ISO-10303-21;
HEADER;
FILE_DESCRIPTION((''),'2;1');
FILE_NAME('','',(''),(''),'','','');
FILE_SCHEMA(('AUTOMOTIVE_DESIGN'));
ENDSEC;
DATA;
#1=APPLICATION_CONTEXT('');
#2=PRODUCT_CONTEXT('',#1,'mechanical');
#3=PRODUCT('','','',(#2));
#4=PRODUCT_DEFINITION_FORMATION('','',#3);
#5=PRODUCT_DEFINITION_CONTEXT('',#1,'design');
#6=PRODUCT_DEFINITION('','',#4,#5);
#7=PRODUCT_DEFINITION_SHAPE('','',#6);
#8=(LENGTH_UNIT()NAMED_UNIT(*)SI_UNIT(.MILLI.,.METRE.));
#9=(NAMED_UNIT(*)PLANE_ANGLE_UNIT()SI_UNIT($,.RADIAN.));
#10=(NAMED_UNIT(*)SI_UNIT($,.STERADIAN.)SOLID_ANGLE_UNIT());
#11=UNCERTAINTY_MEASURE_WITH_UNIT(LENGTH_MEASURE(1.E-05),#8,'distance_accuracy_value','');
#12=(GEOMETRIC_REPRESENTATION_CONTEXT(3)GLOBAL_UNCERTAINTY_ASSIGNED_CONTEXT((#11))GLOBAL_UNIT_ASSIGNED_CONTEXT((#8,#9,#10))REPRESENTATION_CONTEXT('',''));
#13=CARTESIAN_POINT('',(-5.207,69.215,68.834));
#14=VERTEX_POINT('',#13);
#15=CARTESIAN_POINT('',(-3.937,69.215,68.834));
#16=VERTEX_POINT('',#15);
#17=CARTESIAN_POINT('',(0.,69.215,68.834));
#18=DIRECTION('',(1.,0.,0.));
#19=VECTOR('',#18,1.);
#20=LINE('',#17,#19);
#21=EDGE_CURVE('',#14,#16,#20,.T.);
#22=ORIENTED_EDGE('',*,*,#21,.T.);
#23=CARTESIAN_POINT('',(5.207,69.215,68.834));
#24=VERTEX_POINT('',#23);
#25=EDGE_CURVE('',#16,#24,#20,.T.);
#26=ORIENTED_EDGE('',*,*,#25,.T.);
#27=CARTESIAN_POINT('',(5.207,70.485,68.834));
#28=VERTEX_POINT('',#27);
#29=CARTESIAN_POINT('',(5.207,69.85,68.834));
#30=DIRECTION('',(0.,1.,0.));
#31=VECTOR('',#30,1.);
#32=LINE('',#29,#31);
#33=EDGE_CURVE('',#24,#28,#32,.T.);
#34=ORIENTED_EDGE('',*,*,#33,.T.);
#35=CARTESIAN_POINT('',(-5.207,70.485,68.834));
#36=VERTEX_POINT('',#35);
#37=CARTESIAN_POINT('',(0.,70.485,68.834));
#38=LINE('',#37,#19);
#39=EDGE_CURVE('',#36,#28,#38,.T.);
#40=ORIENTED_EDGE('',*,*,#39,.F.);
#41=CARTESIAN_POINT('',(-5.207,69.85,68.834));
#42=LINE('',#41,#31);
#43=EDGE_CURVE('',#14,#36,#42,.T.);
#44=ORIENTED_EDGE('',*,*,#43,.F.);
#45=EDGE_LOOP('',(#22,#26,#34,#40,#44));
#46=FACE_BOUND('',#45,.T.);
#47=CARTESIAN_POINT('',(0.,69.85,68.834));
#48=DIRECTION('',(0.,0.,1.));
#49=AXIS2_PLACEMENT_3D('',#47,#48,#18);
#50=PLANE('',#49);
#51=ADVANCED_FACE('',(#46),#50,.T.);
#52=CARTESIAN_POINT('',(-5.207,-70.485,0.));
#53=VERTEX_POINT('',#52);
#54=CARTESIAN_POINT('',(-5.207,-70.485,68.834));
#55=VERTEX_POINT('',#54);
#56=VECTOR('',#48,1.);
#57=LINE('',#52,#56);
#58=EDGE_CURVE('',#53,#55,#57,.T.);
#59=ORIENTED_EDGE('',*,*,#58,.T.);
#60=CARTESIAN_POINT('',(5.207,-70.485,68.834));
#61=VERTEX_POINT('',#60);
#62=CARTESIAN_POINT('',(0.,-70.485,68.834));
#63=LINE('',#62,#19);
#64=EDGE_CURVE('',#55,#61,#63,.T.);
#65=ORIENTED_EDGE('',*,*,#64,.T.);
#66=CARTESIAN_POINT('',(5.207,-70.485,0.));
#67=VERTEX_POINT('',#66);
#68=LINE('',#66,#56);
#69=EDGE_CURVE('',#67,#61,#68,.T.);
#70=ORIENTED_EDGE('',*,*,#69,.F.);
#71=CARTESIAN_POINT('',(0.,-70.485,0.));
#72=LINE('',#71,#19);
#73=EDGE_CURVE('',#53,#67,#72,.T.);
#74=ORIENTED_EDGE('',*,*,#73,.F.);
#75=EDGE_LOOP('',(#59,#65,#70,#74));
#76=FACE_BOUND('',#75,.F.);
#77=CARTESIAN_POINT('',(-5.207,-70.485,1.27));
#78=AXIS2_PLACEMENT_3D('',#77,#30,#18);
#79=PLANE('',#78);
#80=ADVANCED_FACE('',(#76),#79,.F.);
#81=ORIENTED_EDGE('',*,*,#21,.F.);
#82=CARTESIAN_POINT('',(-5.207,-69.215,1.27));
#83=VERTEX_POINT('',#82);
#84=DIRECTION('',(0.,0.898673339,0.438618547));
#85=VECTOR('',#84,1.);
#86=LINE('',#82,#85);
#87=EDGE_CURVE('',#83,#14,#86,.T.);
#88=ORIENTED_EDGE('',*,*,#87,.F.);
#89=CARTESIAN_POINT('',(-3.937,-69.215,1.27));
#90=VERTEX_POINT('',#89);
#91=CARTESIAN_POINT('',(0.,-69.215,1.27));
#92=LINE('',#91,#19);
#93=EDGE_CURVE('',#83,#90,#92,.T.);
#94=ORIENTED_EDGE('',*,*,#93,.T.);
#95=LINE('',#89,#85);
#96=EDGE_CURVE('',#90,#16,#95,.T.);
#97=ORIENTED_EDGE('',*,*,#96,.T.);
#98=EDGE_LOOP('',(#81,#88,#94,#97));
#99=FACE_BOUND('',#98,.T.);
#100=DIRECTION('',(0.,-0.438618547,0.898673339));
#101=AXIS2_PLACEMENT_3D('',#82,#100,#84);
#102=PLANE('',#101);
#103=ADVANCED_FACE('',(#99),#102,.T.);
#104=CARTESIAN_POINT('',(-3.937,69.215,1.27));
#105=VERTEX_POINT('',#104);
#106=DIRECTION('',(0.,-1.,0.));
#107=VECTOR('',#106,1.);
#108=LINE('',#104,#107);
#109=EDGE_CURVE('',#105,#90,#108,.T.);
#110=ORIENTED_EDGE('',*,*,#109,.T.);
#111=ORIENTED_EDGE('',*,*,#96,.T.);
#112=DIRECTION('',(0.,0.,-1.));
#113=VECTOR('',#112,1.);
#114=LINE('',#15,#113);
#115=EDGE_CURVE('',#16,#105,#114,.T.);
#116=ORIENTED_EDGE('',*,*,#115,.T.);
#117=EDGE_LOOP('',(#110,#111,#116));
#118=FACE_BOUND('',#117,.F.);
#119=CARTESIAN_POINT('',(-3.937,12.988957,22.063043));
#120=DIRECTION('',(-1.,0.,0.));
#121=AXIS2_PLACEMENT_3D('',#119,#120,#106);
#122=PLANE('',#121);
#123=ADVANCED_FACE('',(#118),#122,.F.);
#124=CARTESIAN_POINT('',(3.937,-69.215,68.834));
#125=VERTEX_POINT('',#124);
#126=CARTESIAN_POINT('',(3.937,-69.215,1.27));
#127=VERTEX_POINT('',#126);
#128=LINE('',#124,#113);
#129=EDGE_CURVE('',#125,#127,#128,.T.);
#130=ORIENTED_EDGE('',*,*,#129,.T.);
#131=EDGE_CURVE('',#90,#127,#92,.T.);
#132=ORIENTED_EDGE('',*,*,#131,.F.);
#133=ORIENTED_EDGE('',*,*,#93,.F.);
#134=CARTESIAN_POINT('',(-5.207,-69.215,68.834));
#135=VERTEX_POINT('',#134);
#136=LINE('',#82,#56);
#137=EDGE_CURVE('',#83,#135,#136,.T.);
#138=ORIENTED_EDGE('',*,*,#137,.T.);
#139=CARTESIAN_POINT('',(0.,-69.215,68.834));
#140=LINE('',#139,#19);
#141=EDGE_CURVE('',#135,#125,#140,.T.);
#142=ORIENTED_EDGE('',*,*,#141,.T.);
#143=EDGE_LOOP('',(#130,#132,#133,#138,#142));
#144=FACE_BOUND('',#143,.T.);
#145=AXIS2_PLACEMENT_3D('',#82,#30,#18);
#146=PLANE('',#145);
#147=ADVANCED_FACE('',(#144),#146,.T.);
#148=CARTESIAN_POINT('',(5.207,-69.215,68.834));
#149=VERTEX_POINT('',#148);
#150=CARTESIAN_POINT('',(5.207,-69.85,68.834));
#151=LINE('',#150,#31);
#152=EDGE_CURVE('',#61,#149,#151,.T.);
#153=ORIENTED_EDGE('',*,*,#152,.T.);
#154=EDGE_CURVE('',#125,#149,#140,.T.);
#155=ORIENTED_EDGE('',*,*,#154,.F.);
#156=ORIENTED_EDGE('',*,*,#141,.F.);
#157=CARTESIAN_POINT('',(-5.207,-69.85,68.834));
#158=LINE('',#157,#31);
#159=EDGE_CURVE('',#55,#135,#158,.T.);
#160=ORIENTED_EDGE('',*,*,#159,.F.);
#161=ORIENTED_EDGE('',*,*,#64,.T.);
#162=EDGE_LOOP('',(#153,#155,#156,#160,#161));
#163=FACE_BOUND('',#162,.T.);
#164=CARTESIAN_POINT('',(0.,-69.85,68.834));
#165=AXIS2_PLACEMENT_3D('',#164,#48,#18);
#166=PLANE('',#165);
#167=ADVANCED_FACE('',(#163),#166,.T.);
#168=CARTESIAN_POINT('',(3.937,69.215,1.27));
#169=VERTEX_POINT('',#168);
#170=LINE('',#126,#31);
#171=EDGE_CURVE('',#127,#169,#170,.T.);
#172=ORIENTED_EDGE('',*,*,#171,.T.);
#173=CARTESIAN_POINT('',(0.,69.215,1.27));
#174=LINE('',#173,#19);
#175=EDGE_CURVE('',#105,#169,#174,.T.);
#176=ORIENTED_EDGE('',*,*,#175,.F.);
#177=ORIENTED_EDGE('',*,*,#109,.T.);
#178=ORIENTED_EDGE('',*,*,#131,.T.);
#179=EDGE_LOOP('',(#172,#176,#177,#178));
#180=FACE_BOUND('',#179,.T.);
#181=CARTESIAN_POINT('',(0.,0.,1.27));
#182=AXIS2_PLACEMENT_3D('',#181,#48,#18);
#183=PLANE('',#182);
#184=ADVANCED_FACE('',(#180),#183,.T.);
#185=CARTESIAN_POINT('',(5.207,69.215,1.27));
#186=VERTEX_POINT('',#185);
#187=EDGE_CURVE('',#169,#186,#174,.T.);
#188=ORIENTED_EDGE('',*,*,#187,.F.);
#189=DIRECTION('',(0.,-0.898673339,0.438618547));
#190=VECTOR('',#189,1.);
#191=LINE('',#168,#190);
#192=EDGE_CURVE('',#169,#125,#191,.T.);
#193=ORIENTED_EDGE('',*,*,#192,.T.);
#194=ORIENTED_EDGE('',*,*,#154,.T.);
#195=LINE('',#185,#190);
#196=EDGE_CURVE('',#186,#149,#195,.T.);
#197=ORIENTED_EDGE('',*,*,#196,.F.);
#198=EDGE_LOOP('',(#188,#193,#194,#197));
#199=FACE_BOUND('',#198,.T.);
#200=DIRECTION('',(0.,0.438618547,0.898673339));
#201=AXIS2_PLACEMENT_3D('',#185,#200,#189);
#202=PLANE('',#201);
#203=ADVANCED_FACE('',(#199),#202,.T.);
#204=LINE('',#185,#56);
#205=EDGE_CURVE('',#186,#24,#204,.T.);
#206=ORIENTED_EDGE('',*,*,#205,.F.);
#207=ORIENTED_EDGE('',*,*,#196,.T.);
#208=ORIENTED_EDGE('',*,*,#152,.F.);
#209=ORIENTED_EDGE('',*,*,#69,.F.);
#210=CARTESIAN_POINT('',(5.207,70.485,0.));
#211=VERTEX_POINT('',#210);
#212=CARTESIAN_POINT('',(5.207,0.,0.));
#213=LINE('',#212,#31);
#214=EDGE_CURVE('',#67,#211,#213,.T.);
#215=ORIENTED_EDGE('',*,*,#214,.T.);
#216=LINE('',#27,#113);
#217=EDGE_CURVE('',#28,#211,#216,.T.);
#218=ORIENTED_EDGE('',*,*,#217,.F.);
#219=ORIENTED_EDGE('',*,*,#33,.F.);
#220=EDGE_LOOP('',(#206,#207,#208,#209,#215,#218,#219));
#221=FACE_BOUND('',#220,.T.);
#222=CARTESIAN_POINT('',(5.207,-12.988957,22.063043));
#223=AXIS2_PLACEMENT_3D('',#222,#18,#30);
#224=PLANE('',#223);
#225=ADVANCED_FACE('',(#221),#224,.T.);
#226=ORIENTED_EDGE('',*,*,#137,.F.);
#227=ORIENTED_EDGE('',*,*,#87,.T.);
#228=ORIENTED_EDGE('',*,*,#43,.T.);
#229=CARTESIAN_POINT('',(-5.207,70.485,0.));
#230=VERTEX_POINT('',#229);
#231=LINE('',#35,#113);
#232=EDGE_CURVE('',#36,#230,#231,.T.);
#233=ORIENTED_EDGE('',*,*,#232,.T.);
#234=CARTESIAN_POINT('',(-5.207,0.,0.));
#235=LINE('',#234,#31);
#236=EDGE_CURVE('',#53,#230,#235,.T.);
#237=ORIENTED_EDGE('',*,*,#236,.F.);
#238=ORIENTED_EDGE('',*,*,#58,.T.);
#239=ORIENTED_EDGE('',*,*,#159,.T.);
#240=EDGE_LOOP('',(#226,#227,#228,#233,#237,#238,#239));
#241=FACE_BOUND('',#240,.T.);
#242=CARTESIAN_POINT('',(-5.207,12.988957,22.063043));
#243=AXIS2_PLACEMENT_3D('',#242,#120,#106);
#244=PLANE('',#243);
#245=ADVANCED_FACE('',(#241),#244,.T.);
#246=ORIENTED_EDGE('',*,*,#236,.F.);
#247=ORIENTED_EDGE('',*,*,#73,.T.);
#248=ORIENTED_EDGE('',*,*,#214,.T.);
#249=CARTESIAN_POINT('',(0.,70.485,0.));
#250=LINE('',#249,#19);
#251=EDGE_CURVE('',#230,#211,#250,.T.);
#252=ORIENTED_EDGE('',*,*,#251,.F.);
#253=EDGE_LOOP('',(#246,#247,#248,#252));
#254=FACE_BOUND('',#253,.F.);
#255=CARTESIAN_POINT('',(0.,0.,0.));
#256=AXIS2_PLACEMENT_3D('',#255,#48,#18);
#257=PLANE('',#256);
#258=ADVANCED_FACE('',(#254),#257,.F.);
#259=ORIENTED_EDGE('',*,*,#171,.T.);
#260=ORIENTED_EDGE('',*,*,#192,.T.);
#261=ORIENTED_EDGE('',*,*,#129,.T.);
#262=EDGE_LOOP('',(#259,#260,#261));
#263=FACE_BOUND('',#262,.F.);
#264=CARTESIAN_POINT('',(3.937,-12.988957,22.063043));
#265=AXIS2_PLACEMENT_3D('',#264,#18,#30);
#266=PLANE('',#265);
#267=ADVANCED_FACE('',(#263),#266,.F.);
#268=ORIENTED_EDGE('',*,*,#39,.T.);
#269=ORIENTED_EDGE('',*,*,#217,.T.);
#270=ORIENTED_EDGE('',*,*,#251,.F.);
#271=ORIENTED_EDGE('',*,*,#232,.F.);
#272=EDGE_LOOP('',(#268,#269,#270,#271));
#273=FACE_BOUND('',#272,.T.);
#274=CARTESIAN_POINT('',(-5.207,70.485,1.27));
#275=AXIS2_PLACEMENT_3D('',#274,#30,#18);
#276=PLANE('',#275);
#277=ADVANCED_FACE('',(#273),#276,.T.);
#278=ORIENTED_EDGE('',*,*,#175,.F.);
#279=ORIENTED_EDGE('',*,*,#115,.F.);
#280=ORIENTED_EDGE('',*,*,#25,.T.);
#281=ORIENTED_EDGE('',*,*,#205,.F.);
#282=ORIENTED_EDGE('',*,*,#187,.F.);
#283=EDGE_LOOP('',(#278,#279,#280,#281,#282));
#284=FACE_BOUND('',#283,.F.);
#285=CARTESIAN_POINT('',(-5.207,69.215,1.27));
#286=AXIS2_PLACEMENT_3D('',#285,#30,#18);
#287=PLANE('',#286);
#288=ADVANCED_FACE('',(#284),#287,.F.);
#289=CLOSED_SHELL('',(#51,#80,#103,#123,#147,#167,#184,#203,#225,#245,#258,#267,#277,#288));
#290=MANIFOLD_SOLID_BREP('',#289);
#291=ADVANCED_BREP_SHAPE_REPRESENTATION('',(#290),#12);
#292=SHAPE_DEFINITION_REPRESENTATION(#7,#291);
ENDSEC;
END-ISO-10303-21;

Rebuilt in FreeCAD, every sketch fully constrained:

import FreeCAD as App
import Part
import Sketcher

V = App.Vector
Q = App.Units.Quantity

doc = App.newDocument("Part")
body = doc.addObject("PartDesign::Body", "Body")

sketch1 = body.newObject("Sketcher::SketchObject", "Sketch")
sketch1.AttachmentSupport = (doc.getObject("XY_Plane"), [""])
sketch1.MapMode = "FlatFace"
sketch1.addGeometry([
    Part.LineSegment(V(-5, 70, 0), V(-5, -70, 0)),
    Part.LineSegment(V(-5, -70, 0), V(5, -70, 0)),
    Part.LineSegment(V(5, -70, 0), V(5, 70, 0)),
    Part.LineSegment(V(5, 70, 0), V(-5, 70, 0)),
], False)
sketch1.addConstraint([
    Sketcher.Constraint("Coincident", 0, 2, 1, 1),
    Sketcher.Constraint("Coincident", 1, 2, 2, 1),
    Sketcher.Constraint("Coincident", 2, 2, 3, 1),
    Sketcher.Constraint("Coincident", 3, 2, 0, 1),
    Sketcher.Constraint("Vertical", 0),
    Sketcher.Constraint("Horizontal", 1),
    Sketcher.Constraint("Vertical", 2),
    Sketcher.Constraint("Horizontal", 3),
    Sketcher.Constraint("Symmetric", 0, 2, 2, 2, -1, 1),
    Sketcher.Constraint("DistanceX", 1, 1, 1, 2, Q("0.41 in")),
    Sketcher.Constraint("DistanceY", 0, 2, 0, 1, Q("5.55 in")),
])
pad1 = body.newObject("PartDesign::Pad", "Pad")
pad1.Profile = sketch1
pad1.Length = Q("0.05 in")

sketch2 = body.newObject("Sketcher::SketchObject", "Sketch001")
sketch2.AttachmentSupport = (doc.getObject("XY_Plane"), [""])
sketch2.MapMode = "FlatFace"
sketch2.AttachmentOffset = App.Placement(V(0, 0, 0.05 * 25.4), App.Rotation())
sketch2.addGeometry([
    Part.LineSegment(V(-5.2, -69.2, 0), V(-5.2, -70.5, 0)),
    Part.LineSegment(V(-5.2, -70.5, 0), V(5.2, -70.5, 0)),
    Part.LineSegment(V(5.2, -70.5, 0), V(5.2, -69.2, 0)),
    Part.LineSegment(V(5.2, -69.2, 0), V(-5.2, -69.2, 0)),
], False)
sketch2.addConstraint([
    Sketcher.Constraint("Coincident", 0, 2, 1, 1),
    Sketcher.Constraint("Coincident", 1, 2, 2, 1),
    Sketcher.Constraint("Coincident", 2, 2, 3, 1),
    Sketcher.Constraint("Coincident", 3, 2, 0, 1),
    Sketcher.Constraint("Vertical", 0),
    Sketcher.Constraint("Horizontal", 1),
    Sketcher.Constraint("Vertical", 2),
    Sketcher.Constraint("Horizontal", 3),
    Sketcher.Constraint("DistanceX", 1, 1, 1, 2, Q("0.41 in")),
    Sketcher.Constraint("DistanceY", 0, 2, 0, 1, Q("0.05 in")),
    Sketcher.Constraint("DistanceX", 0, 2, -1, 1, Q("0.205 in")),
    Sketcher.Constraint("DistanceY", 0, 2, -1, 1, Q("2.775 in")),
])
pad2 = body.newObject("PartDesign::Pad", "Pad001")
pad2.Profile = sketch2
pad2.Length = Q("2.66 in")

sketch3 = body.newObject("Sketcher::SketchObject", "Sketch002")
sketch3.AttachmentSupport = (doc.getObject("XY_Plane"), [""])
sketch3.MapMode = "FlatFace"
sketch3.AttachmentOffset = App.Placement(V(0, 0, 0.05 * 25.4), App.Rotation())
sketch3.addGeometry([
    Part.LineSegment(V(-5.2, 70.5, 0), V(-5.2, 69.2, 0)),
    Part.LineSegment(V(-5.2, 69.2, 0), V(5.2, 69.2, 0)),
    Part.LineSegment(V(5.2, 69.2, 0), V(5.2, 70.5, 0)),
    Part.LineSegment(V(5.2, 70.5, 0), V(-5.2, 70.5, 0)),
], False)
sketch3.addConstraint([
    Sketcher.Constraint("Coincident", 0, 2, 1, 1),
    Sketcher.Constraint("Coincident", 1, 2, 2, 1),
    Sketcher.Constraint("Coincident", 2, 2, 3, 1),
    Sketcher.Constraint("Coincident", 3, 2, 0, 1),
    Sketcher.Constraint("Vertical", 0),
    Sketcher.Constraint("Horizontal", 1),
    Sketcher.Constraint("Vertical", 2),
    Sketcher.Constraint("Horizontal", 3),
    Sketcher.Constraint("DistanceX", 1, 1, 1, 2, Q("0.41 in")),
    Sketcher.Constraint("DistanceY", 0, 2, 0, 1, Q("0.05 in")),
    Sketcher.Constraint("DistanceX", 0, 2, -1, 1, Q("0.205 in")),
    Sketcher.Constraint("DistanceY", -1, 1, 0, 2, Q("2.725 in")),
])
pad3 = body.newObject("PartDesign::Pad", "Pad002")
pad3.Profile = sketch3
pad3.Length = Q("2.66 in")

sketch4 = body.newObject("Sketcher::SketchObject", "Sketch003")
sketch4.AttachmentSupport = (doc.getObject("YZ_Plane"), [""])
sketch4.MapMode = "FlatFace"
sketch4.AttachmentOffset = App.Placement(V(0, 0, 0.205 * 25.4), App.Rotation())
sketch4.addGeometry([
    Part.LineSegment(V(69, 1, 0), V(-69, 69, 0)),
    Part.LineSegment(V(-69, 69, 0), V(-69, 1, 0)),
    Part.LineSegment(V(-69, 1, 0), V(69, 1, 0)),
], False)
sketch4.addConstraint([
    Sketcher.Constraint("Coincident", 0, 2, 1, 1),
    Sketcher.Constraint("Coincident", 1, 2, 2, 1),
    Sketcher.Constraint("Coincident", 2, 2, 0, 1),
    Sketcher.Constraint("Vertical", 1),
    Sketcher.Constraint("Horizontal", 2),
    Sketcher.Constraint("DistanceX", 2, 1, 2, 2, Q("5.45 in")),
    Sketcher.Constraint("DistanceY", 1, 2, 1, 1, Q("2.66 in")),
    Sketcher.Constraint("DistanceY", -1, 1, 0, 2, Q("2.71 in")),
    Sketcher.Constraint("DistanceX", 0, 2, -1, 1, Q("2.725 in")),
])
pad4 = body.newObject("PartDesign::Pad", "Pad003")
pad4.Profile = sketch4
pad4.Length = Q("0.05 in")
pad4.Reversed = True

sketch5 = body.newObject("Sketcher::SketchObject", "Sketch004")
sketch5.AttachmentSupport = (doc.getObject("YZ_Plane"), [""])
sketch5.MapMode = "FlatFace"
sketch5.AttachmentOffset = App.Placement(V(0, 0, -0.205 * 25.4), App.Rotation())
sketch5.addGeometry([
    Part.LineSegment(V(-69, 1, 0), V(69, 69, 0)),
    Part.LineSegment(V(69, 69, 0), V(69, 1, 0)),
    Part.LineSegment(V(69, 1, 0), V(-69, 1, 0)),
], False)
sketch5.addConstraint([
    Sketcher.Constraint("Coincident", 0, 2, 1, 1),
    Sketcher.Constraint("Coincident", 1, 2, 2, 1),
    Sketcher.Constraint("Coincident", 2, 2, 0, 1),
    Sketcher.Constraint("Vertical", 1),
    Sketcher.Constraint("Horizontal", 2),
    Sketcher.Constraint("DistanceX", 2, 2, 2, 1, Q("5.45 in")),
    Sketcher.Constraint("DistanceY", 1, 2, 1, 1, Q("2.66 in")),
    Sketcher.Constraint("DistanceY", -1, 1, 0, 2, Q("2.71 in")),
    Sketcher.Constraint("DistanceX", -1, 1, 0, 2, Q("2.725 in")),
])
pad5 = body.newObject("PartDesign::Pad", "Pad004")
pad5.Profile = sketch5
pad5.Length = Q("0.05 in")

doc.recompute()
